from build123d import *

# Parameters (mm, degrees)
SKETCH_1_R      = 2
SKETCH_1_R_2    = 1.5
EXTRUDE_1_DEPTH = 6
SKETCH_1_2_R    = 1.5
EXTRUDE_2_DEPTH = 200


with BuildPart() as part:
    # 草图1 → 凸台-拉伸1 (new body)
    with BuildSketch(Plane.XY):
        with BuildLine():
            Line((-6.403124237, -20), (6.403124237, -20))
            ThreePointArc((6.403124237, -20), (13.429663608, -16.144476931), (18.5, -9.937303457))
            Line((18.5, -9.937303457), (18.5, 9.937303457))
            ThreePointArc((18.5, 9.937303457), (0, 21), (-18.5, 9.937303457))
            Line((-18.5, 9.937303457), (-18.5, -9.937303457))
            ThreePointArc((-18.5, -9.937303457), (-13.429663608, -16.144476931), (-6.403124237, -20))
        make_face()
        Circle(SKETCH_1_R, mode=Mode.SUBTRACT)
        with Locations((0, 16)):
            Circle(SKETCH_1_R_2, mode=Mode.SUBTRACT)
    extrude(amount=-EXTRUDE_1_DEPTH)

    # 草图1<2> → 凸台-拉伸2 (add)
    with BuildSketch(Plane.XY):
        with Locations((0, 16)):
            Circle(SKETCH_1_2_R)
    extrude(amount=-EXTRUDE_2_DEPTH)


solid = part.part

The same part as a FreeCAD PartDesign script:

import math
import FreeCAD as App
import Part
import Sketcher
from FreeCAD import Vector

doc = App.newDocument("Part")
body = doc.addObject("PartDesign::Body", "Body")

# Sketch on XY plane
sketch1 = body.newObject("Sketcher::SketchObject", "Sketch")
sketch1.AttachmentSupport = (doc.getObject("XY_Plane"), [""])
sketch1.MapMode = "FlatFace"
sketch1.addGeometry([
    Part.LineSegment(Vector(-6.4, -20, 0), Vector(6.4, -20, 0)),  # 0
    Part.ArcOfCircle(Part.Circle(Vector(0, 0, 0), Vector(0, 0, 1), 21), math.radians(-72), math.radians(-28)),  # 1
    Part.LineSegment(Vector(18.5, -9.9, 0), Vector(18.5, 9.9, 0)),  # 2
    Part.ArcOfCircle(Part.Circle(Vector(0, 0, 0), Vector(0, 0, 1), 21), math.radians(28), math.radians(152)),  # 3
    Part.LineSegment(Vector(-18.5, 9.9, 0), Vector(-18.5, -9.9, 0)),  # 4
    Part.ArcOfCircle(Part.Circle(Vector(0, 0, 0), Vector(0, 0, 1), 21), math.radians(-152), math.radians(-108)),  # 5
    Part.Circle(Vector(0, 0, 0), Vector(0, 0, 1), 2),  # 6
    Part.Circle(Vector(0, 16, 0), Vector(0, 0, 1), 1.5),  # 7
], False)
sketch1.addConstraint([
    Sketcher.Constraint("Coincident", 0, 2, 1, 1),
    Sketcher.Constraint("Coincident", 1, 2, 2, 1),
    Sketcher.Constraint("Coincident", 2, 2, 3, 1),
    Sketcher.Constraint("Coincident", 3, 2, 4, 1),
    Sketcher.Constraint("Coincident", 4, 2, 5, 1),
    Sketcher.Constraint("Coincident", 5, 2, 0, 1),
    Sketcher.Constraint("Horizontal", 0),
    Sketcher.Constraint("Vertical", 2),
    Sketcher.Constraint("Vertical", 4),
    Sketcher.Constraint("Coincident", 1, 3, -1, 1),
    Sketcher.Constraint("Coincident", 3, 3, -1, 1),
    Sketcher.Constraint("Coincident", 5, 3, -1, 1),
    Sketcher.Constraint("Coincident", 6, 3, -1, 1),
    Sketcher.Constraint("Equal", 1, 3),
    Sketcher.Constraint("Equal", 3, 5),
    Sketcher.Constraint("PointOnObject", 7, 3, -2),
    Sketcher.Constraint("Horizontal", 2, 2, 3, 2),
    Sketcher.Constraint("Diameter", 6, 4.0),
    Sketcher.Constraint("Diameter", 7, 3.0),
    Sketcher.Constraint("Radius", 1, 21.0),
    Sketcher.Constraint("DistanceY", -1, 1, 7, 3, 16.0),
    Sketcher.Constraint("DistanceY", 0, 2, -1, 1, 20.0),
    Sketcher.Constraint("DistanceX", -1, 1, 1, 2, 18.5),
])
pad1 = body.newObject("PartDesign::Pad", "Pad")
pad1.Profile = sketch1
pad1.Length = 6
pad1.Reversed = True

# Sketch on XY plane
sketch2 = body.newObject("Sketcher::SketchObject", "Sketch001")
sketch2.AttachmentSupport = (doc.getObject("XY_Plane"), [""])
sketch2.MapMode = "FlatFace"
sketch2.addGeometry(Part.Circle(Vector(0, 16, 0), Vector(0, 0, 1), 1.5), False)
sketch2.addConstraint([
    Sketcher.Constraint("PointOnObject", 0, 3, -2),
    Sketcher.Constraint("Diameter", 0, 3.0),
    Sketcher.Constraint("DistanceY", -1, 1, 0, 3, 16.0),
])
pad2 = body.newObject("PartDesign::Pad", "Pad001")
pad2.Profile = sketch2
pad2.Length = 200
pad2.Reversed = True

doc.recompute()
